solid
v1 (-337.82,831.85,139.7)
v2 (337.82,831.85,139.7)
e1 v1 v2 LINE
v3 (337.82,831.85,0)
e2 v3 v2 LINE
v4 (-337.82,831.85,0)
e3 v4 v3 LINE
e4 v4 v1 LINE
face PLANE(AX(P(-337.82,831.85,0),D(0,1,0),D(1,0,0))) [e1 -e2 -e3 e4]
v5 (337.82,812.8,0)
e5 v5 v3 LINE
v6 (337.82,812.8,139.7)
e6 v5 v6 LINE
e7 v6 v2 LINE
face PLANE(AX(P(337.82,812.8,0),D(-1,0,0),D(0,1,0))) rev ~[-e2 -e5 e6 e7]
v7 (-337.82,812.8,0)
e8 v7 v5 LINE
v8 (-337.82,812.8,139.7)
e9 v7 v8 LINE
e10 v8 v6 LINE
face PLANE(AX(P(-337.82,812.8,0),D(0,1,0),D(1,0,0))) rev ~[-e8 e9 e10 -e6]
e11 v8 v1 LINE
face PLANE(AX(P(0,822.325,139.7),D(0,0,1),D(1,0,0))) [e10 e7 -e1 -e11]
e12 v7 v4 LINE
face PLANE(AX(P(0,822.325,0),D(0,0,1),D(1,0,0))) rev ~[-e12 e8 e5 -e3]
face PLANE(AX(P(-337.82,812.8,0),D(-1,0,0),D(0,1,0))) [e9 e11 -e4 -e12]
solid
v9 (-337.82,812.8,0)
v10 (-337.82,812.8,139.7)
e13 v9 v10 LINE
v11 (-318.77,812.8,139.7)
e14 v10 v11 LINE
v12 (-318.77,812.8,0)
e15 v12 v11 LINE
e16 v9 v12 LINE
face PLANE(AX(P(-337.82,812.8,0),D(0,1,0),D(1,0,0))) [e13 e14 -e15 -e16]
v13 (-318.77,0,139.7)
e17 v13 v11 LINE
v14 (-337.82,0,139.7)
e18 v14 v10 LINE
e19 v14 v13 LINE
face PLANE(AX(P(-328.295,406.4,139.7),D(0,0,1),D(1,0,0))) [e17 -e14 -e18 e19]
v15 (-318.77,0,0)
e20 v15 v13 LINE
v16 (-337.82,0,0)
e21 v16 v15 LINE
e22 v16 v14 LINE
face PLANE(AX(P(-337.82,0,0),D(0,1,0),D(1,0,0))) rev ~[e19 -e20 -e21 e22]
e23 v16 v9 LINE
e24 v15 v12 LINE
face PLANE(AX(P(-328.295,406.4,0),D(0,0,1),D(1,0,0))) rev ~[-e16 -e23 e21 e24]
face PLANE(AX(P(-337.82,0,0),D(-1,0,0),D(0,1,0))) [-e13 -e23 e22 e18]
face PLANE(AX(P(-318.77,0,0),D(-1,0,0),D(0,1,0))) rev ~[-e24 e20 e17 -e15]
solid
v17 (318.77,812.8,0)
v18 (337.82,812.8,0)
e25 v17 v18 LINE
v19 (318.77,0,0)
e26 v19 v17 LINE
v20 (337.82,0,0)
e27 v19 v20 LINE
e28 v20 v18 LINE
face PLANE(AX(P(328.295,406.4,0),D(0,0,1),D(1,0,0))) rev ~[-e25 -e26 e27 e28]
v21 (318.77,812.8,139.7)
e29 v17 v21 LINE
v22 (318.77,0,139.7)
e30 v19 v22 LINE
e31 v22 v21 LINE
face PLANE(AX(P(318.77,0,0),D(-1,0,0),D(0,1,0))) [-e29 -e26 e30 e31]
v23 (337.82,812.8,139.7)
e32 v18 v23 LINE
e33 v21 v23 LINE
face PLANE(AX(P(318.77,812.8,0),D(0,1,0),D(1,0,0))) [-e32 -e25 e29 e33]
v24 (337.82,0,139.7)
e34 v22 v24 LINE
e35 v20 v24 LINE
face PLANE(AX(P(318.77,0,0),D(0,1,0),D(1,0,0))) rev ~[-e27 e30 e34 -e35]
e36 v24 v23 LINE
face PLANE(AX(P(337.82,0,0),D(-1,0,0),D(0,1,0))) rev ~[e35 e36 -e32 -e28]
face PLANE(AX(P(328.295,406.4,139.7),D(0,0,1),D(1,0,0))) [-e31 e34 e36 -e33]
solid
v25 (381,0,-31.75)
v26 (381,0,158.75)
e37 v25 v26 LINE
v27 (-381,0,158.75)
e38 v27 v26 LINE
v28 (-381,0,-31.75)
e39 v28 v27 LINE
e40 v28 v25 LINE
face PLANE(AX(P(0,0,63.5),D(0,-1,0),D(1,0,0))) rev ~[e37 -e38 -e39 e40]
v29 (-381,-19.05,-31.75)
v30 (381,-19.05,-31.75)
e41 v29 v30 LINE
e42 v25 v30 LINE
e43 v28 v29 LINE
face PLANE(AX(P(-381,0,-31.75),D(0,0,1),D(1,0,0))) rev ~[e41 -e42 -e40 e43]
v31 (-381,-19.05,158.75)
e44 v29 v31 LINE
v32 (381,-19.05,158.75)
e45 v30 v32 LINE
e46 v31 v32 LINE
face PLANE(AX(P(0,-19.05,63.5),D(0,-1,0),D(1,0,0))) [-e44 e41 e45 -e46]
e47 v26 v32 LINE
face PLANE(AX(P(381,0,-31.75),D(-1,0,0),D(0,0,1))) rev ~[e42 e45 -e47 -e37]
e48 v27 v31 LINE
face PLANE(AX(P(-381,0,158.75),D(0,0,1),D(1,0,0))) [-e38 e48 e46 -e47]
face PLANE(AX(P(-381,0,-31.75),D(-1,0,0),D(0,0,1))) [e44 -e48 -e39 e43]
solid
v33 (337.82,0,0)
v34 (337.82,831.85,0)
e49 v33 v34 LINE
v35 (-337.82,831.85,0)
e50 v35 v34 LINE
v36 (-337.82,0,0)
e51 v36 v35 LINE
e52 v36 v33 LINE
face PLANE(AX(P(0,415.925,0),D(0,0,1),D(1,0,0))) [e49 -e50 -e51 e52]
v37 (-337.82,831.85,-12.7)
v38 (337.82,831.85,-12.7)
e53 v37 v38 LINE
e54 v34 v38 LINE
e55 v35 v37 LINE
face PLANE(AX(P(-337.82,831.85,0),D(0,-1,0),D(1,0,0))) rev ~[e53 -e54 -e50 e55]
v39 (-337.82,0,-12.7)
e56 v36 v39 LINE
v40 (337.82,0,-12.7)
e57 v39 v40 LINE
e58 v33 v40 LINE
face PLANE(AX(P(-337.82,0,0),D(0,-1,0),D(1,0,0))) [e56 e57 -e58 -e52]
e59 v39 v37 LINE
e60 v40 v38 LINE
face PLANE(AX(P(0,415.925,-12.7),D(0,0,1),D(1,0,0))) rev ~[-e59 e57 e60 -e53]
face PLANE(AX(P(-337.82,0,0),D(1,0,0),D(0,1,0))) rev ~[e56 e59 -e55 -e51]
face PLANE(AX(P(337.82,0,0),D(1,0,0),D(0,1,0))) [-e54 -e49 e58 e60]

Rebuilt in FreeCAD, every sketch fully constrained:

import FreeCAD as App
import Part
import Sketcher
from FreeCAD import Vector
Q = App.Units.Quantity

doc = App.newDocument("Part")
params = doc.addObject("Spreadsheet::Sheet", "Params")
for row, (alias, value) in enumerate([
    ("sketch1_height", "32 in"),
    ("sketch1_width", "0.75 in"),
    ("pad1_length", "5.5 in"),
    ("sketch2_height", "32 in"),
    ("sketch2_width", "0.75 in"),
    ("pad2_length", "5.5 in"),
    ("sketch3_width", "26.6 in"),
    ("sketch3_height", "0.75 in"),
    ("pad3_length", "5.5 in"),
    ("sketch4_width", "26.6 in"),
    ("sketch4_height", "32.75 in"),
    ("pad4_length", "0.5 in"),
    ("sketch5_width", "30 in"),
    ("sketch5_height", "7.5 in"),
    ("pad5_length", "0.75 in"),
], start=1):
    params.set(f"A{row}", alias)
    params.set(f"B{row}", "=" + value)
    params.setAlias(f"B{row}", alias)

body = doc.addObject("PartDesign::Body", "Body")

# Sketch on XY plane
sketch1 = body.newObject("Sketcher::SketchObject", "Sketch")
sketch1.AttachmentSupport = (doc.getObject("XY_Plane"), [""])
sketch1.MapMode = "FlatFace"
sketch1.addGeometry(Part.LineSegment(Vector(319, 813, 0), Vector(319, 0, 0)), False)
sketch1.addGeometry(Part.LineSegment(Vector(319, 0, 0), Vector(338, 0, 0)), False)
sketch1.addGeometry(Part.LineSegment(Vector(338, 0, 0), Vector(338, 813, 0)), False)
sketch1.addGeometry(Part.LineSegment(Vector(338, 813, 0), Vector(319, 813, 0)), False)
sketch1.addConstraint(Sketcher.Constraint("Coincident", 0, 2, 1, 1))
sketch1.addConstraint(Sketcher.Constraint("Coincident", 1, 2, 2, 1))
sketch1.addConstraint(Sketcher.Constraint("Coincident", 2, 2, 3, 1))
sketch1.addConstraint(Sketcher.Constraint("Coincident", 3, 2, 0, 1))
sketch1.addConstraint(Sketcher.Constraint("Vertical", 0))
sketch1.addConstraint(Sketcher.Constraint("Horizontal", 1))
sketch1.addConstraint(Sketcher.Constraint("Vertical", 2))
sketch1.addConstraint(Sketcher.Constraint("Horizontal", 3))
sketch1.addConstraint(Sketcher.Constraint("PointOnObject", 0, 2, -1))
sketch1.addConstraint(Sketcher.Constraint("DistanceY", 0, 2, 0, 1, Q("32 in")))
sketch1.addConstraint(Sketcher.Constraint("DistanceX", 1, 1, 1, 2, Q("0.75 in")))
sketch1.addConstraint(Sketcher.Constraint("DistanceX", -1, 1, 1, 2, Q("13.3 in")))
sketch1.setExpression("Constraints[9]", "Params.sketch1_height")
sketch1.setExpression("Constraints[10]", "Params.sketch1_width")
pad1 = body.newObject("PartDesign::Pad", "Pad")
pad1.Profile = sketch1
pad1.setExpression("Length", "Params.pad1_length")
body2 = doc.addObject("PartDesign::Body", "Body001")

# Sketch on XY plane
sketch2 = body2.newObject("Sketcher::SketchObject", "Sketch001")
sketch2.AttachmentSupport = (doc.getObject("XY_Plane001"), [""])
sketch2.MapMode = "FlatFace"
sketch2.addGeometry(Part.LineSegment(Vector(-338, 813, 0), Vector(-338, 0, 0)), False)
sketch2.addGeometry(Part.LineSegment(Vector(-338, 0, 0), Vector(-319, 0, 0)), False)
sketch2.addGeometry(Part.LineSegment(Vector(-319, 0, 0), Vector(-319, 813, 0)), False)
sketch2.addGeometry(Part.LineSegment(Vector(-319, 813, 0), Vector(-338, 813, 0)), False)
sketch2.addConstraint(Sketcher.Constraint("Coincident", 0, 2, 1, 1))
sketch2.addConstraint(Sketcher.Constraint("Coincident", 1, 2, 2, 1))
sketch2.addConstraint(Sketcher.Constraint("Coincident", 2, 2, 3, 1))
sketch2.addConstraint(Sketcher.Constraint("Coincident", 3, 2, 0, 1))
sketch2.addConstraint(Sketcher.Constraint("Vertical", 0))
sketch2.addConstraint(Sketcher.Constraint("Horizontal", 1))
sketch2.addConstraint(Sketcher.Constraint("Vertical", 2))
sketch2.addConstraint(Sketcher.Constraint("Horizontal", 3))
sketch2.addConstraint(Sketcher.Constraint("PointOnObject", 0, 2, -1))
sketch2.addConstraint(Sketcher.Constraint("DistanceY", 0, 2, 0, 1, Q("32 in")))
sketch2.addConstraint(Sketcher.Constraint("DistanceX", 1, 1, 1, 2, Q("0.75 in")))
sketch2.addConstraint(Sketcher.Constraint("DistanceX", 0, 2, -1, 1, Q("13.3 in")))
sketch2.setExpression("Constraints[9]", "Params.sketch2_height")
sketch2.setExpression("Constraints[10]", "Params.sketch2_width")
pad2 = body2.newObject("PartDesign::Pad", "Pad001")
pad2.Profile = sketch2
pad2.setExpression("Length", "Params.pad2_length")
body3 = doc.addObject("PartDesign::Body", "Body002")

# Sketch on XY plane
sketch3 = body3.newObject("Sketcher::SketchObject", "Sketch002")
sketch3.AttachmentSupport = (doc.getObject("XY_Plane002"), [""])
sketch3.MapMode = "FlatFace"
sketch3.addGeometry(Part.LineSegment(Vector(-338, 832, 0), Vector(-338, 813, 0)), False)
sketch3.addGeometry(Part.LineSegment(Vector(-338, 813, 0), Vector(338, 813, 0)), False)
sketch3.addGeometry(Part.LineSegment(Vector(338, 813, 0), Vector(338, 832, 0)), False)
sketch3.addGeometry(Part.LineSegment(Vector(338, 832, 0), Vector(-338, 832, 0)), False)
sketch3.addConstraint(Sketcher.Constraint("Coincident", 0, 2, 1, 1))
sketch3.addConstraint(Sketcher.Constraint("Coincident", 1, 2, 2, 1))
sketch3.addConstraint(Sketcher.Constraint("Coincident", 2, 2, 3, 1))
sketch3.addConstraint(Sketcher.Constraint("Coincident", 3, 2, 0, 1))
sketch3.addConstraint(Sketcher.Constraint("Vertical", 0))
sketch3.addConstraint(Sketcher.Constraint("Horizontal", 1))
sketch3.addConstraint(Sketcher.Constraint("Vertical", 2))
sketch3.addConstraint(Sketcher.Constraint("Horizontal", 3))
sketch3.addConstraint(Sketcher.Constraint("DistanceX", 1, 1, 1, 2, Q("26.6 in")))
sketch3.addConstraint(Sketcher.Constraint("DistanceY", -1, 1, 0, 2, Q("32 in")))
sketch3.addConstraint(Sketcher.Constraint("DistanceY", 0, 2, 0, 1, Q("0.75 in")))
sketch3.addConstraint(Sketcher.Constraint("DistanceX", 0, 2, -1, 1, Q("13.3 in")))
sketch3.setExpression("Constraints[8]", "Params.sketch3_width")
sketch3.setExpression("Constraints[10]", "Params.sketch3_height")
pad3 = body3.newObject("PartDesign::Pad", "Pad002")
pad3.Profile = sketch3
pad3.setExpression("Length", "Params.pad3_length")
body4 = doc.addObject("PartDesign::Body", "Body003")

# Sketch on XY plane
sketch4 = body4.newObject("Sketcher::SketchObject", "Sketch003")
sketch4.AttachmentSupport = (doc.getObject("XY_Plane003"), [""])
sketch4.MapMode = "FlatFace"
sketch4.addGeometry(Part.LineSegment(Vector(-338, 832, 0), Vector(-338, 0, 0)), False)
sketch4.addGeometry(Part.LineSegment(Vector(-338, 0, 0), Vector(338, 0, 0)), False)
sketch4.addGeometry(Part.LineSegment(Vector(338, 0, 0), Vector(338, 832, 0)), False)
sketch4.addGeometry(Part.LineSegment(Vector(338, 832, 0), Vector(-338, 832, 0)), False)
sketch4.addConstraint(Sketcher.Constraint("Coincident", 0, 2, 1, 1))
sketch4.addConstraint(Sketcher.Constraint("Coincident", 1, 2, 2, 1))
sketch4.addConstraint(Sketcher.Constraint("Coincident", 2, 2, 3, 1))
sketch4.addConstraint(Sketcher.Constraint("Coincident", 3, 2, 0, 1))
sketch4.addConstraint(Sketcher.Constraint("Vertical", 0))
sketch4.addConstraint(Sketcher.Constraint("Horizontal", 1))
sketch4.addConstraint(Sketcher.Constraint("Vertical", 2))
sketch4.addConstraint(Sketcher.Constraint("Horizontal", 3))
sketch4.addConstraint(Sketcher.Constraint("Symmetric", 0, 2, 1, 2, -1, 1))
sketch4.addConstraint(Sketcher.Constraint("DistanceX", 1, 1, 1, 2, Q("26.6 in")))
sketch4.addConstraint(Sketcher.Constraint("DistanceY", 0, 2, 0, 1, Q("32.75 in")))
sketch4.setExpression("Constraints[9]", "Params.sketch4_width")
sketch4.setExpression("Constraints[10]", "Params.sketch4_height")
pad4 = body4.newObject("PartDesign::Pad", "Pad003")
pad4.Profile = sketch4
pad4.setExpression("Length", "Params.pad4_length")
pad4.Reversed = True
body5 = doc.addObject("PartDesign::Body", "Body004")

# Sketch on XZ plane
sketch5 = body5.newObject("Sketcher::SketchObject", "Sketch004")
sketch5.AttachmentSupport = (doc.getObject("XZ_Plane004"), [""])
sketch5.MapMode = "FlatFace"
sketch5.addGeometry(Part.LineSegment(Vector(-381, 159, 0), Vector(-381, -32, 0)), False)
sketch5.addGeometry(Part.LineSegment(Vector(-381, -32, 0), Vector(381, -32, 0)), False)
sketch5.addGeometry(Part.LineSegment(Vector(381, -32, 0), Vector(381, 159, 0)), False)
sketch5.addGeometry(Part.LineSegment(Vector(381, 159, 0), Vector(-381, 159, 0)), False)
sketch5.addConstraint(Sketcher.Constraint("Coincident", 0, 2, 1, 1))
sketch5.addConstraint(Sketcher.Constraint("Coincident", 1, 2, 2, 1))
sketch5.addConstraint(Sketcher.Constraint("Coincident", 2, 2, 3, 1))
sketch5.addConstraint(Sketcher.Constraint("Coincident", 3, 2, 0, 1))
sketch5.addConstraint(Sketcher.Constraint("Vertical", 0))
sketch5.addConstraint(Sketcher.Constraint("Horizontal", 1))
sketch5.addConstraint(Sketcher.Constraint("Vertical", 2))
sketch5.addConstraint(Sketcher.Constraint("Horizontal", 3))
sketch5.addConstraint(Sketcher.Constraint("DistanceX", 1, 1, 1, 2, Q("30 in")))
sketch5.addConstraint(Sketcher.Constraint("DistanceY", 0, 2, 0, 1, Q("7.5 in")))
sketch5.addConstraint(Sketcher.Constraint("DistanceX", 0, 2, -1, 1, Q("15 in")))
sketch5.addConstraint(Sketcher.Constraint("DistanceY", 0, 2, -1, 1, Q("1.25 in")))
sketch5.setExpression("Constraints[8]", "Params.sketch5_width")
sketch5.setExpression("Constraints[9]", "Params.sketch5_height")
pad5 = body5.newObject("PartDesign::Pad", "Pad004")
pad5.Profile = sketch5
pad5.setExpression("Length", "Params.pad5_length")

doc.recompute()
